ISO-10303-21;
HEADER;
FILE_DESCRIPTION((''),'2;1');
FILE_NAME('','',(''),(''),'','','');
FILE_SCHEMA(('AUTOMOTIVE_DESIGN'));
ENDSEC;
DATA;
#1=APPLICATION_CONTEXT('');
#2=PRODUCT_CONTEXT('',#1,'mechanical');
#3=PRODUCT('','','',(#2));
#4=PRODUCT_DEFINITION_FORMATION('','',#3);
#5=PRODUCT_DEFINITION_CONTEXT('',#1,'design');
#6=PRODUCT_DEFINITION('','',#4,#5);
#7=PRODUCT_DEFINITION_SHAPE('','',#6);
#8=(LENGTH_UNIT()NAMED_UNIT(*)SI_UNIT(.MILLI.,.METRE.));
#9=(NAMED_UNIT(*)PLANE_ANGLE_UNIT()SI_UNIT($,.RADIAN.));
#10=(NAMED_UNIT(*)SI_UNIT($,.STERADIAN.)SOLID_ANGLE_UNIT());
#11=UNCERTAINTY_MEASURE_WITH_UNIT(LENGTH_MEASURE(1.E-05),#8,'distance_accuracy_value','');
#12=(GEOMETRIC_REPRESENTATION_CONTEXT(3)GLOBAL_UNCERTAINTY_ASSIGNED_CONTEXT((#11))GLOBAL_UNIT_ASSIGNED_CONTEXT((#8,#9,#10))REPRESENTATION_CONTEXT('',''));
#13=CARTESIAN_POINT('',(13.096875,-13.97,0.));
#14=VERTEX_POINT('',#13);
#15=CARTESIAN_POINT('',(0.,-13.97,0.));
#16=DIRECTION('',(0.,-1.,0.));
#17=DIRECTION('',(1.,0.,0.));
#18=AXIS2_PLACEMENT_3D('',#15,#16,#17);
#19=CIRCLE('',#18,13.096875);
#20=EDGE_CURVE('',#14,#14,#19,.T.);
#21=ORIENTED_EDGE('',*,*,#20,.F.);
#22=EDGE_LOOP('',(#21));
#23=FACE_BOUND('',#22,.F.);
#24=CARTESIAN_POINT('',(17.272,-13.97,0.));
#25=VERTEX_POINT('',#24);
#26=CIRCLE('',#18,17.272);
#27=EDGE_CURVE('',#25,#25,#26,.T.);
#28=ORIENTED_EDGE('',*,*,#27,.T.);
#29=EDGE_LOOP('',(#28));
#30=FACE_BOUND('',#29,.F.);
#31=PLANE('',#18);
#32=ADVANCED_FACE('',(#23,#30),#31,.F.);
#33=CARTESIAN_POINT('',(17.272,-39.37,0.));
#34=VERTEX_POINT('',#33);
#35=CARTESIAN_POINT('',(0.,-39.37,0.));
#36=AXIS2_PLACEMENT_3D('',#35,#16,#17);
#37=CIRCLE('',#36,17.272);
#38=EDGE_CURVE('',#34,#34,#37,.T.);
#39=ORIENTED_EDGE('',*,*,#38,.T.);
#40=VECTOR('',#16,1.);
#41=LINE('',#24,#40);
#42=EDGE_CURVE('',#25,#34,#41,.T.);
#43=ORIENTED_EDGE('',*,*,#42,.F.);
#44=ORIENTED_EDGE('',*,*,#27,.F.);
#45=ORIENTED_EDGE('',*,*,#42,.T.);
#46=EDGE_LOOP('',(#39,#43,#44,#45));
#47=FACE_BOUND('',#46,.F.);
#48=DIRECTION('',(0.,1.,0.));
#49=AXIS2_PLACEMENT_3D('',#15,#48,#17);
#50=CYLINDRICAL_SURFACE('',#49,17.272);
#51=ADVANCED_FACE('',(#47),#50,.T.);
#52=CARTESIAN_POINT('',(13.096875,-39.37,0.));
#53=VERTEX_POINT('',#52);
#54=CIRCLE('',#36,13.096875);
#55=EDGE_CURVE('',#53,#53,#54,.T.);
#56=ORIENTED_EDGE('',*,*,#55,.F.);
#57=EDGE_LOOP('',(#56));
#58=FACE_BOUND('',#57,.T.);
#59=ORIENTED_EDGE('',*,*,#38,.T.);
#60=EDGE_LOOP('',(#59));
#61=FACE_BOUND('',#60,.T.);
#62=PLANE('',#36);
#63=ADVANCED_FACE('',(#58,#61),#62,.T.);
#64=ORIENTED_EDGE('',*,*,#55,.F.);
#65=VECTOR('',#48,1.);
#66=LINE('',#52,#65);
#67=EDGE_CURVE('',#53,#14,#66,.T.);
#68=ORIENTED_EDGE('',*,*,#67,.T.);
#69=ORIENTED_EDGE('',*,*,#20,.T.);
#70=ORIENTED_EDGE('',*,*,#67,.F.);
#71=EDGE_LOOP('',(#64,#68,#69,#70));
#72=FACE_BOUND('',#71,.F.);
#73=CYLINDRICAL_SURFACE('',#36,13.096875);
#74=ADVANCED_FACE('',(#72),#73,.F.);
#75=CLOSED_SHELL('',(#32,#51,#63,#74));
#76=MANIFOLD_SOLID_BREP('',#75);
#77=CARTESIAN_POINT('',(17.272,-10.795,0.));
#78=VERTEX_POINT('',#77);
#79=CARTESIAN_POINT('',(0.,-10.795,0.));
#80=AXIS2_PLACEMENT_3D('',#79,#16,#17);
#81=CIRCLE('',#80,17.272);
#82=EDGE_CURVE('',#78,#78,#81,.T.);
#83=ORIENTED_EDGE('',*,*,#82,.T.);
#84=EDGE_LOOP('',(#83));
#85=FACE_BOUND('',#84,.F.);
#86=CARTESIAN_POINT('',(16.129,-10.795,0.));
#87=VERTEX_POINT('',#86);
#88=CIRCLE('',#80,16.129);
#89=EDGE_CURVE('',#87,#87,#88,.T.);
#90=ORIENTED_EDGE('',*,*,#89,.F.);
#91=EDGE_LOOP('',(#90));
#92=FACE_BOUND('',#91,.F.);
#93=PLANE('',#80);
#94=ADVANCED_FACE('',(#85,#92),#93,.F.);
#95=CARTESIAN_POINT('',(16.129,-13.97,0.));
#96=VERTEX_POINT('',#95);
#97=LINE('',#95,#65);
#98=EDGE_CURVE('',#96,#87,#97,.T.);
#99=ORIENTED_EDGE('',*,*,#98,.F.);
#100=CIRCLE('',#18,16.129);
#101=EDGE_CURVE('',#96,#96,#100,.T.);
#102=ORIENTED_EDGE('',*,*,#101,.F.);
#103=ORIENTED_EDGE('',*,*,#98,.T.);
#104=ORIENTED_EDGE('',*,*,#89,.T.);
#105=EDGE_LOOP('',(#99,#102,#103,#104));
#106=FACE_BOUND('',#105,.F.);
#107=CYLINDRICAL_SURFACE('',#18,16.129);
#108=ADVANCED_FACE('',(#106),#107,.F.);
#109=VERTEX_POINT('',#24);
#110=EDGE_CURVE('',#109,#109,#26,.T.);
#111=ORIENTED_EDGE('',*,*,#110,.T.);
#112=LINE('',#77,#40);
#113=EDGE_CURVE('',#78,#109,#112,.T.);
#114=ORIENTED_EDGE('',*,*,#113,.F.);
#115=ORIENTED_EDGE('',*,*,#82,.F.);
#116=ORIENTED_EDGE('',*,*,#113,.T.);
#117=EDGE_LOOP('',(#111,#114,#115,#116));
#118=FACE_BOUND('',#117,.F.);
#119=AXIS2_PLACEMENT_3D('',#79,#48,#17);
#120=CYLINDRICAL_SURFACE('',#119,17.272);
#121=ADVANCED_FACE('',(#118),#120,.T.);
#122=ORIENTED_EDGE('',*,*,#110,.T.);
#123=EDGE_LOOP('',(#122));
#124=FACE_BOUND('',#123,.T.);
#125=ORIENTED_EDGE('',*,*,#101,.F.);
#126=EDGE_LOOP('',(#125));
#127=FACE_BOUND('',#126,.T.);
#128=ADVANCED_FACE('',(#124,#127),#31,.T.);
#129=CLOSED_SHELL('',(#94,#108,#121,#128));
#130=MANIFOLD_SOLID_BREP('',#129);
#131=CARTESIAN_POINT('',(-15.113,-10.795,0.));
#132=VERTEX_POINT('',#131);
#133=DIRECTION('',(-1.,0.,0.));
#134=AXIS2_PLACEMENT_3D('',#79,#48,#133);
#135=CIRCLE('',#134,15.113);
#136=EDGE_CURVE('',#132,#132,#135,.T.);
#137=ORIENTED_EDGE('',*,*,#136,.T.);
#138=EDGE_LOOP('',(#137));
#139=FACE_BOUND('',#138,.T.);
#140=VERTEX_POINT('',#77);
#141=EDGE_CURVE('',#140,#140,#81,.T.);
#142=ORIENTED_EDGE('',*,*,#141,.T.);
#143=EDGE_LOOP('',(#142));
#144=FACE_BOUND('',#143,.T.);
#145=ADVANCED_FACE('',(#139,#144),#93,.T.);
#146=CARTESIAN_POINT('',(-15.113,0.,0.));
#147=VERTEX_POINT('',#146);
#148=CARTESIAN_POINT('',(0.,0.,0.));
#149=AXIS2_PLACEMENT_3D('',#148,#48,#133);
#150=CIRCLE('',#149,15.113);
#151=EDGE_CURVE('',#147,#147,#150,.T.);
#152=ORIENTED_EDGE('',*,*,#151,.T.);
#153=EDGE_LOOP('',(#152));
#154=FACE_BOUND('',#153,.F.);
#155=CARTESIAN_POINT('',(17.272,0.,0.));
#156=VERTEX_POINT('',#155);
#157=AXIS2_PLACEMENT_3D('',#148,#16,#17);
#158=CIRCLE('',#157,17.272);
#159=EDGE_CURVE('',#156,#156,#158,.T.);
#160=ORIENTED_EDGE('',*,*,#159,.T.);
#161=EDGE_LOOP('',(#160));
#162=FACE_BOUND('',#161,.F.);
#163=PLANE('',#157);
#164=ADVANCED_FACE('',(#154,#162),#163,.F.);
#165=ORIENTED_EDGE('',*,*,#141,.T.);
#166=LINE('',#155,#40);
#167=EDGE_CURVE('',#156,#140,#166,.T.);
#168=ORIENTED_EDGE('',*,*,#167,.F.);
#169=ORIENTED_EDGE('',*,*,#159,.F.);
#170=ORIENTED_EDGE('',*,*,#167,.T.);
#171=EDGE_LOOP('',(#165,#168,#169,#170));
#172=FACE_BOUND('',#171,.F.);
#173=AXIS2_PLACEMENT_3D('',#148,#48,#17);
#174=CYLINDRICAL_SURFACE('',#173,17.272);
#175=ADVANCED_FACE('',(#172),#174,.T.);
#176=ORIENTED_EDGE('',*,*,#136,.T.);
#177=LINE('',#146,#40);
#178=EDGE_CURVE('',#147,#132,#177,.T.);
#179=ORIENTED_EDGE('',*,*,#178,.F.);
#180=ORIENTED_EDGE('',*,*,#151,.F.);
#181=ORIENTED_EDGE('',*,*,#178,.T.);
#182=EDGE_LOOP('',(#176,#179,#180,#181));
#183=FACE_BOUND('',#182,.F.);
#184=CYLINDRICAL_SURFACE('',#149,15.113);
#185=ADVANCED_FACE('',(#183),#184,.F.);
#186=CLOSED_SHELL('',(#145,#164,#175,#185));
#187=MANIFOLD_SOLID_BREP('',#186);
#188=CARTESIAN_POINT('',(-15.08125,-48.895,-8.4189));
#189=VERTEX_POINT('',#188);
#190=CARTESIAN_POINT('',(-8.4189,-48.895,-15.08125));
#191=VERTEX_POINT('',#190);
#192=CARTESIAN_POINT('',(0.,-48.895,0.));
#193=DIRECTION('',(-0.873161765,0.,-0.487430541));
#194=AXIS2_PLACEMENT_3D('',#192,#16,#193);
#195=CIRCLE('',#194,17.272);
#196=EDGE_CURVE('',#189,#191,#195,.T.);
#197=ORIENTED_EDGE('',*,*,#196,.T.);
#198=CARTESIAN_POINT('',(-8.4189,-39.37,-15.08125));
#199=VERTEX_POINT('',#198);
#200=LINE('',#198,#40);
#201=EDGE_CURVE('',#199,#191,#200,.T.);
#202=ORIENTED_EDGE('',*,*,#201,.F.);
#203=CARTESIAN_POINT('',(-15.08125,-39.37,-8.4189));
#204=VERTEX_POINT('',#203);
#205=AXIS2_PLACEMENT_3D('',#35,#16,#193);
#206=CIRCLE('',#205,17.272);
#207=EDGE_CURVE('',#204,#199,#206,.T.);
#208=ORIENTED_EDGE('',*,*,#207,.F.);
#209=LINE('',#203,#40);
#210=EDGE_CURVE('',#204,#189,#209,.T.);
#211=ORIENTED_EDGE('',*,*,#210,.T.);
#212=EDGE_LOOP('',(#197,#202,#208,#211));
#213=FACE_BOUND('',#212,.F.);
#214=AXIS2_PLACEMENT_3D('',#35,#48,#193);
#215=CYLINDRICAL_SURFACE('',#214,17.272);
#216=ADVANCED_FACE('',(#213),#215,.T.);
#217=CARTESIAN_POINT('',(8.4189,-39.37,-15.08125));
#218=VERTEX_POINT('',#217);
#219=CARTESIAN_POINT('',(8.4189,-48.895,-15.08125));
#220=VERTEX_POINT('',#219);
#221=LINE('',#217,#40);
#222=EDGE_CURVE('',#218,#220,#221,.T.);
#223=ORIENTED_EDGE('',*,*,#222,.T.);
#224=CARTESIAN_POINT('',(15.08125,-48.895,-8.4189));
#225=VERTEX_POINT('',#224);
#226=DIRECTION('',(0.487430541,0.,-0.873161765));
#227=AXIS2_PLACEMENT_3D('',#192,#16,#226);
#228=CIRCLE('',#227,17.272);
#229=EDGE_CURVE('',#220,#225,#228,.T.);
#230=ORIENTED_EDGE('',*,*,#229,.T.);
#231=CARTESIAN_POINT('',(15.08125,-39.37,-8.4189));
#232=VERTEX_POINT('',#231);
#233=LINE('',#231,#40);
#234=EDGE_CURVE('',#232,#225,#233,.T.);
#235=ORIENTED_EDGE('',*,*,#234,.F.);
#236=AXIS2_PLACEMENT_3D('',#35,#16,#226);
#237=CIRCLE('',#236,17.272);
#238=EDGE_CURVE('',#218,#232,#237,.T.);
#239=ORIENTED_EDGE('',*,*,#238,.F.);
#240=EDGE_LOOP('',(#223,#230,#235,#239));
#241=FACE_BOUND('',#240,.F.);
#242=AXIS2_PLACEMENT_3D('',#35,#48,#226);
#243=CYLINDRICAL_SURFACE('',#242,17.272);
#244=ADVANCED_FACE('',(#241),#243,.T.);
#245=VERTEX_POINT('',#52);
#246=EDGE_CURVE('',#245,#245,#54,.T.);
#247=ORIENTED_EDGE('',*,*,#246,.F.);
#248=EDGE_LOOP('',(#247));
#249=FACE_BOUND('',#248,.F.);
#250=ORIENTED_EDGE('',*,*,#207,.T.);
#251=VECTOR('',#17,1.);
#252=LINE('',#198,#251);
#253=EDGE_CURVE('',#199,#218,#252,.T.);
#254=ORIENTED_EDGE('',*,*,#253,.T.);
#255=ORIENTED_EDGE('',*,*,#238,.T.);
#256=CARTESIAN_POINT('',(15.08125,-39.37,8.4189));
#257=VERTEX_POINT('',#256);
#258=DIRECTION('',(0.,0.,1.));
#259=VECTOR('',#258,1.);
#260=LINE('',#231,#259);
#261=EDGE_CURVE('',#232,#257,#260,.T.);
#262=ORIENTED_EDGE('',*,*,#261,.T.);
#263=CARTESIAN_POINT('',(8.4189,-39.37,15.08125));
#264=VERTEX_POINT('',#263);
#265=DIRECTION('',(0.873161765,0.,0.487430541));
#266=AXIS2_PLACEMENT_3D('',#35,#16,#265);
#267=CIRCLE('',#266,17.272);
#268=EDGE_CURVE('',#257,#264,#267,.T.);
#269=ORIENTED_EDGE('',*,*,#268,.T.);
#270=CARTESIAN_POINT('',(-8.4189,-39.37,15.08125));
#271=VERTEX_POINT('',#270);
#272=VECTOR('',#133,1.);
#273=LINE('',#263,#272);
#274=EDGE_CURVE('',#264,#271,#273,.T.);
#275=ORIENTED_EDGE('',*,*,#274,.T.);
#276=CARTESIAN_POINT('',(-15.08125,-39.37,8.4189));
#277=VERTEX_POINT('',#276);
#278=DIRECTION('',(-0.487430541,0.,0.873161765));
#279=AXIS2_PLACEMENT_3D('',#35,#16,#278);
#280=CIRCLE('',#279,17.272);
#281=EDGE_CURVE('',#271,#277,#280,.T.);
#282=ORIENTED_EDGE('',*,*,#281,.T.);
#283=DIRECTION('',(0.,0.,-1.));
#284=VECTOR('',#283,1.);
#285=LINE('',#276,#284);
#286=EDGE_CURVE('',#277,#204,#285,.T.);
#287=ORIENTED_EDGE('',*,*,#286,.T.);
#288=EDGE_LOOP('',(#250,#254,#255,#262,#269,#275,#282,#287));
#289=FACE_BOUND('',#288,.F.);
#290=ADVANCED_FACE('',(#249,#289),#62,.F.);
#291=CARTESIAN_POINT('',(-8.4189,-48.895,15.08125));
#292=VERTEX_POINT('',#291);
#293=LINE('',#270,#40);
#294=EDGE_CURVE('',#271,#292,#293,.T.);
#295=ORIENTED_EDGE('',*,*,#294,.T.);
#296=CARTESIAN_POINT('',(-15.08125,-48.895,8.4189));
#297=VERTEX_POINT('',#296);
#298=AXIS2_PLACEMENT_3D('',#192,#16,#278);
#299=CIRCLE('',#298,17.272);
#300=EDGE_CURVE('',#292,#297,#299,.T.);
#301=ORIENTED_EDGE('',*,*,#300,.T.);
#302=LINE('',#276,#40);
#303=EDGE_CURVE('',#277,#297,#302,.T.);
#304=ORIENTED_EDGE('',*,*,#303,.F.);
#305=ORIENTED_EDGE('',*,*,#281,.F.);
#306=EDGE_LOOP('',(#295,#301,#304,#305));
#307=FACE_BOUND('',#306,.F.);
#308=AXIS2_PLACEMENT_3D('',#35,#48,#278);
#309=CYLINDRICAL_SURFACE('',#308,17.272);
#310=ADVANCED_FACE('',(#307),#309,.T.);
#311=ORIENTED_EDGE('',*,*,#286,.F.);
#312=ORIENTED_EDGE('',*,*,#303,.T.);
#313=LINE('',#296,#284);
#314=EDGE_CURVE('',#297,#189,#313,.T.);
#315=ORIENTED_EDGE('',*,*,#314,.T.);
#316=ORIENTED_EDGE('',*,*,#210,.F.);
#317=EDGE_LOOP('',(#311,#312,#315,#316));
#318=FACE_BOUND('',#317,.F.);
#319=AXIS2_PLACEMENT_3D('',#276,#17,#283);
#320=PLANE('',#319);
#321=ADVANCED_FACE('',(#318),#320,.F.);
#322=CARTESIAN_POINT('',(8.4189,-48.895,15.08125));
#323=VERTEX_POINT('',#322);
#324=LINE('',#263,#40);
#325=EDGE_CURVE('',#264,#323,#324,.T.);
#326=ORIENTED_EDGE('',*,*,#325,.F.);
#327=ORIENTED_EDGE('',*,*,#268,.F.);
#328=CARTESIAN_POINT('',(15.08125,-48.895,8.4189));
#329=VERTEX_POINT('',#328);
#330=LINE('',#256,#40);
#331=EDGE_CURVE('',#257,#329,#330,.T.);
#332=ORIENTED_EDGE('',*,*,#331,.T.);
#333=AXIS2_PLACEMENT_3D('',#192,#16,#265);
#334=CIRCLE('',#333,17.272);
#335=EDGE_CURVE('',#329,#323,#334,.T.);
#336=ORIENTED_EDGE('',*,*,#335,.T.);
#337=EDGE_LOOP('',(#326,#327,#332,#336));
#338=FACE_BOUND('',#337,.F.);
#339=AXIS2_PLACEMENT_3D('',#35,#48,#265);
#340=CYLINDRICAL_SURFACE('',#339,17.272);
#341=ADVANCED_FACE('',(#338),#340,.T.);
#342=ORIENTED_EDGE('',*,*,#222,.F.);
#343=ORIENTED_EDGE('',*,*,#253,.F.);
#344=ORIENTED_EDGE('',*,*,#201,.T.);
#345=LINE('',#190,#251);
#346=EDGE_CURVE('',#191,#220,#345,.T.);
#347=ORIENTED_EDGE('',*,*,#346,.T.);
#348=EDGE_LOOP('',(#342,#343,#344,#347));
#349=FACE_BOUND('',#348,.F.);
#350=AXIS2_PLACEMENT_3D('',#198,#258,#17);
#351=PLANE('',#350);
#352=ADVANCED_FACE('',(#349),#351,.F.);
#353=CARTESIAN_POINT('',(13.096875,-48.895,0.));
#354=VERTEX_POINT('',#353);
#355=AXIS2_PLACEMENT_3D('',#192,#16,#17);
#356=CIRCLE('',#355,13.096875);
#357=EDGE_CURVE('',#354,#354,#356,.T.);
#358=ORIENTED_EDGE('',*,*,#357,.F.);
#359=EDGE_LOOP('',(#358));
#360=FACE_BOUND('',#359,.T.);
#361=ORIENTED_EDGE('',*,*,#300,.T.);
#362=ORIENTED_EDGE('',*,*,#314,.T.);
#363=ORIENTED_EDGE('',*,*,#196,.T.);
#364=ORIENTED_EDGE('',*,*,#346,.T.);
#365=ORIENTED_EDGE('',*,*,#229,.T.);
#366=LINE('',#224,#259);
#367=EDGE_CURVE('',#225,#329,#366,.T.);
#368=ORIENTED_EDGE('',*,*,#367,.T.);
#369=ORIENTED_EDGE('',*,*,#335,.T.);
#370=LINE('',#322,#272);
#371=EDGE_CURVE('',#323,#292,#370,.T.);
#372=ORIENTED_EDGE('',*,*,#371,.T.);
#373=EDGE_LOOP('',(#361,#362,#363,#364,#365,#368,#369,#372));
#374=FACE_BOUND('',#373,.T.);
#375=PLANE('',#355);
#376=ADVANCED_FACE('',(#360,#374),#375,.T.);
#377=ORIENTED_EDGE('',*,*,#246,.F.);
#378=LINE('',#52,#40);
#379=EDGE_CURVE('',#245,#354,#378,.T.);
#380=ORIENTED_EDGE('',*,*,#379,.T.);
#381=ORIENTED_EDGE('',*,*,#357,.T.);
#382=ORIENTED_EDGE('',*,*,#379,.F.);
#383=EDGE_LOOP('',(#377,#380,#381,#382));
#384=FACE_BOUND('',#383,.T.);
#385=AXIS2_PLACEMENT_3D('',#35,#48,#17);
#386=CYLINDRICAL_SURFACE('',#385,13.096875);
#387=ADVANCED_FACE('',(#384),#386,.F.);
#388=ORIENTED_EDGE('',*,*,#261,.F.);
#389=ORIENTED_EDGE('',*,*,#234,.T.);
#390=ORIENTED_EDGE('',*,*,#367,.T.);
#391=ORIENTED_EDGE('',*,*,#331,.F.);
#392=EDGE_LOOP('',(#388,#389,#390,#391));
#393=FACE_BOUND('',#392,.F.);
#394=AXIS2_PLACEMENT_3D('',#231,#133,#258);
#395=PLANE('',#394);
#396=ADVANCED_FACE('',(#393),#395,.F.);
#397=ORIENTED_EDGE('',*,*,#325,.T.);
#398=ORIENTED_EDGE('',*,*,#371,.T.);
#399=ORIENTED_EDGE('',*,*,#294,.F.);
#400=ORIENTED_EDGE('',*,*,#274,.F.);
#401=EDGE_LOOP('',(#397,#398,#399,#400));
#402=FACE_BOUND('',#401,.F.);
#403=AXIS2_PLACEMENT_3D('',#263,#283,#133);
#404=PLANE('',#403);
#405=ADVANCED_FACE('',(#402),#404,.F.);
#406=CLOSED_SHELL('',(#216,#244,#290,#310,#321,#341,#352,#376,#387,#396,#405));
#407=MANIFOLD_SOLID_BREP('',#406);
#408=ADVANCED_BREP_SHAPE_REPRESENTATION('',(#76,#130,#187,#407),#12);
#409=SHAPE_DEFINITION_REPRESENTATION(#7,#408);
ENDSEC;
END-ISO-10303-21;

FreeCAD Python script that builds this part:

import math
import FreeCAD as App
import Part
import Sketcher

V = App.Vector
Q = App.Units.Quantity

doc = App.newDocument("Part")
body = doc.addObject("PartDesign::Body", "Body")

sketch1 = body.newObject("Sketcher::SketchObject", "Sketch")
sketch1.AttachmentSupport = (doc.getObject("XZ_Plane"), [""])
sketch1.MapMode = "FlatFace"
sketch1.addGeometry(Part.Circle(V(0, 0, 0), V(0, 0, 1), 17.272), False)
sketch1.addConstraint([
    Sketcher.Constraint("Coincident", 0, 3, -1, 1),
    Sketcher.Constraint("Diameter", 0, Q("1.36 in")),
])
pad1 = body.newObject("PartDesign::Pad", "Pad")
pad1.Profile = sketch1
pad1.Length = Q("0.425 in")

sketch2 = body.newObject("Sketcher::SketchObject", "Sketch001")
sketch2.AttachmentSupport = (doc.getObject("XZ_Plane"), [""])
sketch2.MapMode = "FlatFace"
sketch2.addGeometry(Part.Circle(V(0, 0, 0), V(0, 0, 1), 15.113), False)
sketch2.addConstraint([
    Sketcher.Constraint("Coincident", 0, 3, -1, 1),
    Sketcher.Constraint("Diameter", 0, Q("1.19 in")),
])
pocket1 = body.newObject("PartDesign::Pocket", "Pocket")
pocket1.Profile = sketch2
pocket1.Type = "ThroughAll"
pocket1.Reversed = True
body2 = doc.addObject("PartDesign::Body", "Body001")

sketch3 = body2.newObject("Sketcher::SketchObject", "Sketch002")
sketch3.AttachmentSupport = (doc.getObject("XZ_Plane001"), [""])
sketch3.MapMode = "FlatFace"
sketch3.AttachmentOffset = App.Placement(V(0, 0, 0.425 * 25.4), App.Rotation())
sketch3.addGeometry(Part.Circle(V(0, 0, 0), V(0, 0, 1), 17.272), False)
sketch3.addConstraint([
    Sketcher.Constraint("Coincident", 0, 3, -1, 1),
    Sketcher.Constraint("Diameter", 0, Q("1.36 in")),
])
pad2 = body2.newObject("PartDesign::Pad", "Pad001")
pad2.Profile = sketch3
pad2.Length = Q("0.125 in")

sketch4 = body2.newObject("Sketcher::SketchObject", "Sketch003")
sketch4.AttachmentSupport = (doc.getObject("XZ_Plane001"), [""])
sketch4.MapMode = "FlatFace"
sketch4.AttachmentOffset = App.Placement(V(0, 0, 0.55 * 25.4), App.Rotation())
sketch4.addGeometry(Part.Circle(V(0, 0, 0), V(0, 0, 1), 16.129), False)
sketch4.addConstraint([
    Sketcher.Constraint("Coincident", 0, 3, -1, 1),
    Sketcher.Constraint("Diameter", 0, Q("1.27 in")),
])
pocket2 = body2.newObject("PartDesign::Pocket", "Pocket001")
pocket2.Profile = sketch4
pocket2.Type = "ThroughAll"
body3 = doc.addObject("PartDesign::Body", "Body002")

sketch5 = body3.newObject("Sketcher::SketchObject", "Sketch004")
sketch5.AttachmentSupport = (doc.getObject("XZ_Plane002"), [""])
sketch5.MapMode = "FlatFace"
sketch5.AttachmentOffset = App.Placement(V(0, 0, 0.55 * 25.4), App.Rotation())
sketch5.addGeometry(Part.Circle(V(0, 0, 0), V(0, 0, 1), 17.272), False)
sketch5.addConstraint([
    Sketcher.Constraint("Coincident", 0, 3, -1, 1),
    Sketcher.Constraint("Diameter", 0, Q("1.36 in")),
])
pad3 = body3.newObject("PartDesign::Pad", "Pad002")
pad3.Profile = sketch5
pad3.Length = Q("1 in")

sketch6 = body3.newObject("Sketcher::SketchObject", "Sketch005")
sketch6.AttachmentSupport = (doc.getObject("XZ_Plane002"), [""])
sketch6.MapMode = "FlatFace"
sketch6.AttachmentOffset = App.Placement(V(0, 0, 1.55 * 25.4), App.Rotation())
sketch6.addGeometry(Part.Circle(V(0, 0, 0), V(0, 0, 1), 13.096875), False)
sketch6.addConstraint([
    Sketcher.Constraint("Coincident", 0, 3, -1, 1),
    Sketcher.Constraint("Diameter", 0, Q("1.03125 in")),
])
pocket3 = body3.newObject("PartDesign::Pocket", "Pocket002")
pocket3.Profile = sketch6
pocket3.Type = "ThroughAll"
body4 = doc.addObject("PartDesign::Body", "Body003")

sketch7 = body4.newObject("Sketcher::SketchObject", "Sketch006")
sketch7.AttachmentSupport = (doc.getObject("XZ_Plane003"), [""])
sketch7.MapMode = "FlatFace"
sketch7.AttachmentOffset = App.Placement(V(0, 0, 1.55 * 25.4), App.Rotation())
sketch7.addGeometry([
    Part.LineSegment(V(15.08125, -8.4189, 0), V(15.08125, 8.4189, 0)),
    Part.ArcOfCircle(Part.Circle(V(0, 0, 0), V(0, 0, 1), 17.272), math.radians(29.171838), math.radians(60.828162)),
    Part.LineSegment(V(8.4189, 15.08125, 0), V(-8.4189, 15.08125, 0)),
    Part.ArcOfCircle(Part.Circle(V(0, 0, 0), V(0, 0, 1), 17.272), math.radians(119.171838), math.radians(150.828162)),
    Part.LineSegment(V(-15.08125, 8.4189, 0), V(-15.08125, -8.4189, 0)),
    Part.ArcOfCircle(Part.Circle(V(0, 0, 0), V(0, 0, 1), 17.272), math.radians(-150.828162), math.radians(-119.171838)),
    Part.LineSegment(V(-8.4189, -15.08125, 0), V(8.4189, -15.08125, 0)),
    Part.ArcOfCircle(Part.Circle(V(0, 0, 0), V(0, 0, 1), 17.272), math.radians(-60.828162), math.radians(-29.171838)),
    Part.Circle(V(0, 0, 0), V(0, 0, 1), 13.096875),
], False)
sketch7.addConstraint([
    Sketcher.Constraint("Coincident", 0, 2, 1, 1),
    Sketcher.Constraint("Coincident", 1, 2, 2, 1),
    Sketcher.Constraint("Coincident", 2, 2, 3, 1),
    Sketcher.Constraint("Coincident", 3, 2, 4, 1),
    Sketcher.Constraint("Coincident", 4, 2, 5, 1),
    Sketcher.Constraint("Coincident", 5, 2, 6, 1),
    Sketcher.Constraint("Coincident", 6, 2, 7, 1),
    Sketcher.Constraint("Coincident", 7, 2, 0, 1),
    Sketcher.Constraint("Vertical", 0),
    Sketcher.Constraint("Horizontal", 2),
    Sketcher.Constraint("Vertical", 4),
    Sketcher.Constraint("Horizontal", 6),
    Sketcher.Constraint("Coincident", 1, 3, -1, 1),
    Sketcher.Constraint("Coincident", 3, 3, -1, 1),
    Sketcher.Constraint("Coincident", 5, 3, -1, 1),
    Sketcher.Constraint("Coincident", 7, 3, -1, 1),
    Sketcher.Constraint("Coincident", 8, 3, -1, 1),
    Sketcher.Constraint("Equal", 1, 3),
    Sketcher.Constraint("Equal", 3, 5),
    Sketcher.Constraint("Equal", 5, 7),
    Sketcher.Constraint("Horizontal", 0, 2, 3, 2),
    Sketcher.Constraint("Vertical", 2, 2, 5, 2),
    Sketcher.Constraint("Equal", 6, 0),
    Sketcher.Constraint("Radius", 1, Q("0.68 in")),
    Sketcher.Constraint("Diameter", 8, Q("1.03125 in")),
    Sketcher.Constraint("DistanceX", -1, 1, 0, 2, Q("0.59375 in")),
])
pad4 = body4.newObject("PartDesign::Pad", "Pad003")
pad4.Profile = sketch7
pad4.Length = Q("0.375 in")

doc.recompute()
